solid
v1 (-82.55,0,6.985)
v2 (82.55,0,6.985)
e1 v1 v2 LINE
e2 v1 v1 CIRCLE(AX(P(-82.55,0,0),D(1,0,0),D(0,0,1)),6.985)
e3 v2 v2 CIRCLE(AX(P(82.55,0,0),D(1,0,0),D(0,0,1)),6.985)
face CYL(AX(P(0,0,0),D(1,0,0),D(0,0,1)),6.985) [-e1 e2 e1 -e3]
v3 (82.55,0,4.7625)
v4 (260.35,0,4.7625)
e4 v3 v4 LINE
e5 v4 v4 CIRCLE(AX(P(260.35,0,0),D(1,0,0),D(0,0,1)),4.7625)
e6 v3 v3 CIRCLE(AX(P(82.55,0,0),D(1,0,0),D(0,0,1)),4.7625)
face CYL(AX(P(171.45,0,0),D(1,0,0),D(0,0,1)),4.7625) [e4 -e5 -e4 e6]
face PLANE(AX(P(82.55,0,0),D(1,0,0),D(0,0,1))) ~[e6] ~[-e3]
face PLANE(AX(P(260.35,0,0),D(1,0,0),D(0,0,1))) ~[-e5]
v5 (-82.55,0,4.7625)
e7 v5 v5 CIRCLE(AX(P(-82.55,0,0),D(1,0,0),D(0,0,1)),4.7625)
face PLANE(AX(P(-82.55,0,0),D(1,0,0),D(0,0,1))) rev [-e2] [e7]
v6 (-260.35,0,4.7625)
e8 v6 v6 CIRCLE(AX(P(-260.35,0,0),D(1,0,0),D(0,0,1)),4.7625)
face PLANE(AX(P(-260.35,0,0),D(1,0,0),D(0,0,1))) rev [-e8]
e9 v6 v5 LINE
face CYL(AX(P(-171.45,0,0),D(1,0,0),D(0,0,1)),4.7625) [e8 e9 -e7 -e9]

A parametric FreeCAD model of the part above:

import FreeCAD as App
import Part
import Sketcher

V = App.Vector
Q = App.Units.Quantity

doc = App.newDocument("Part")
body = doc.addObject("PartDesign::Body", "Body")

sketch1 = body.newObject("Sketcher::SketchObject", "Sketch")
sketch1.AttachmentSupport = (doc.getObject("XZ_Plane"), [""])
sketch1.MapMode = "FlatFace"
sketch1.addGeometry([
    Part.LineSegment(V(-260.4, 4.8, 0), V(-260.4, 0, 0)),
    Part.LineSegment(V(-260.4, 0, 0), V(260.4, 0, 0)),
    Part.LineSegment(V(260.4, 0, 0), V(260.4, 4.8, 0)),
    Part.LineSegment(V(260.4, 4.8, 0), V(82.5, 4.8, 0)),
    Part.LineSegment(V(82.5, 4.8, 0), V(82.5, 7, 0)),
    Part.LineSegment(V(82.5, 7, 0), V(-82.5, 7, 0)),
    Part.LineSegment(V(-82.5, 7, 0), V(-82.5, 4.8, 0)),
    Part.LineSegment(V(-82.5, 4.8, 0), V(-260.4, 4.8, 0)),
], False)
sketch1.addConstraint([
    Sketcher.Constraint("Coincident", 0, 2, 1, 1),
    Sketcher.Constraint("Coincident", 1, 2, 2, 1),
    Sketcher.Constraint("Coincident", 2, 2, 3, 1),
    Sketcher.Constraint("Coincident", 3, 2, 4, 1),
    Sketcher.Constraint("Coincident", 4, 2, 5, 1),
    Sketcher.Constraint("Coincident", 5, 2, 6, 1),
    Sketcher.Constraint("Coincident", 6, 2, 7, 1),
    Sketcher.Constraint("Coincident", 7, 2, 0, 1),
    Sketcher.Constraint("Vertical", 0),
    Sketcher.Constraint("Horizontal", 1),
    Sketcher.Constraint("Vertical", 2),
    Sketcher.Constraint("Horizontal", 3),
    Sketcher.Constraint("Vertical", 4),
    Sketcher.Constraint("Horizontal", 5),
    Sketcher.Constraint("Vertical", 6),
    Sketcher.Constraint("Horizontal", 7),
    Sketcher.Constraint("Symmetric", 0, 2, 1, 2, -1, 1),
    Sketcher.Constraint("Symmetric", 3, 2, 6, 2, -2),
    Sketcher.Constraint("DistanceX", 3, 2, 3, 1, Q("7 in")),
    Sketcher.Constraint("DistanceX", 1, 1, 1, 2, Q("20.5 in")),
    Sketcher.Constraint("DistanceY", 0, 2, 0, 1, Q("0.1875 in")),
    Sketcher.Constraint("DistanceY", 4, 1, 4, 2, Q("0.0875 in")),
])
revolution = body.newObject("PartDesign::Revolution", "Revolution")
revolution.Profile = sketch1
revolution.ReferenceAxis = (sketch1, ["H_Axis"])
revolution.Angle = 360

doc.recompute()
